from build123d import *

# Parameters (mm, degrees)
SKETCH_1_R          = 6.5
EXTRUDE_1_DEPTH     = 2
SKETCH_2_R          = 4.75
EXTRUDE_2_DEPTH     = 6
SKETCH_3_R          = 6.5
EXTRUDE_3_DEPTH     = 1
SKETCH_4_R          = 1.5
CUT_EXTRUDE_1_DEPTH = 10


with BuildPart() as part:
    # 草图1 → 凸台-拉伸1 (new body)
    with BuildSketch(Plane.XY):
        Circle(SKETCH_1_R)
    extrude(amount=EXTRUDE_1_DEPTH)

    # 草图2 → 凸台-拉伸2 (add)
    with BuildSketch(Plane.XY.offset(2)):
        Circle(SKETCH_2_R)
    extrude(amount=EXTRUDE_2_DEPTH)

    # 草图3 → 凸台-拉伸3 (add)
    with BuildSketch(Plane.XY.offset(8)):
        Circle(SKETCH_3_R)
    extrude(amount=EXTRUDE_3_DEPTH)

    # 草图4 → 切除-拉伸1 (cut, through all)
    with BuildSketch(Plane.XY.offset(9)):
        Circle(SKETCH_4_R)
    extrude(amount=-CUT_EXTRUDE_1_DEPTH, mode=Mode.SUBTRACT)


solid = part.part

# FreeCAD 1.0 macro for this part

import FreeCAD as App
import Part
import Sketcher

doc = App.newDocument("Part")
body = doc.addObject("PartDesign::Body", "Body")

# Sketch on XY plane
sketch1 = body.newObject("Sketcher::SketchObject", "Sketch")
sketch1.AttachmentSupport = (doc.getObject("XY_Plane"), [""])
sketch1.MapMode = "FlatFace"
sketch1.addGeometry(Part.Circle(App.Vector(0, 0, 0), App.Vector(0, 0, 1), 6), False)
sketch1.addConstraint([
    Sketcher.Constraint("Coincident", 0, 3, -1, 1),
    Sketcher.Constraint("Diameter", 0, 13.0),
])
pad1 = body.newObject("PartDesign::Pad", "Pad")
pad1.Profile = sketch1
pad1.Length = 2

# Sketch on XY plane
sketch2 = body.newObject("Sketcher::SketchObject", "Sketch001")
sketch2.AttachmentSupport = (doc.getObject("XY_Plane"), [""])
sketch2.MapMode = "FlatFace"
sketch2.AttachmentOffset = App.Placement(App.Vector(0, 0, 2), App.Rotation())
sketch2.addGeometry(Part.Circle(App.Vector(0, 0, 0), App.Vector(0, 0, 1), 4.8), False)
sketch2.addConstraint([
    Sketcher.Constraint("Coincident", 0, 3, -1, 1),
    Sketcher.Constraint("Diameter", 0, 9.5),
])
pad2 = body.newObject("PartDesign::Pad", "Pad001")
pad2.Profile = sketch2
pad2.Length = 6

# Sketch on XY plane
sketch3 = body.newObject("Sketcher::SketchObject", "Sketch002")
sketch3.AttachmentSupport = (doc.getObject("XY_Plane"), [""])
sketch3.MapMode = "FlatFace"
sketch3.AttachmentOffset = App.Placement(App.Vector(0, 0, 8), App.Rotation())
sketch3.addGeometry(Part.Circle(App.Vector(0, 0, 0), App.Vector(0, 0, 1), 6), False)
sketch3.addConstraint([
    Sketcher.Constraint("Coincident", 0, 3, -1, 1),
    Sketcher.Constraint("Diameter", 0, 13.0),
])
pad3 = body.newObject("PartDesign::Pad", "Pad002")
pad3.Profile = sketch3
pad3.Length = 1

# Sketch on XY plane
sketch4 = body.newObject("Sketcher::SketchObject", "Sketch003")
sketch4.AttachmentSupport = (doc.getObject("XY_Plane"), [""])
sketch4.MapMode = "FlatFace"
sketch4.AttachmentOffset = App.Placement(App.Vector(0, 0, 9), App.Rotation())
sketch4.addGeometry(Part.Circle(App.Vector(0, 0, 0), App.Vector(0, 0, 1), 1.5), False)
sketch4.addConstraint([
    Sketcher.Constraint("Coincident", 0, 3, -1, 1),
    Sketcher.Constraint("Diameter", 0, 3.0),
])
pocket1 = body.newObject("PartDesign::Pocket", "Pocket")
pocket1.Profile = sketch4
pocket1.Type = "ThroughAll"

doc.recompute()
